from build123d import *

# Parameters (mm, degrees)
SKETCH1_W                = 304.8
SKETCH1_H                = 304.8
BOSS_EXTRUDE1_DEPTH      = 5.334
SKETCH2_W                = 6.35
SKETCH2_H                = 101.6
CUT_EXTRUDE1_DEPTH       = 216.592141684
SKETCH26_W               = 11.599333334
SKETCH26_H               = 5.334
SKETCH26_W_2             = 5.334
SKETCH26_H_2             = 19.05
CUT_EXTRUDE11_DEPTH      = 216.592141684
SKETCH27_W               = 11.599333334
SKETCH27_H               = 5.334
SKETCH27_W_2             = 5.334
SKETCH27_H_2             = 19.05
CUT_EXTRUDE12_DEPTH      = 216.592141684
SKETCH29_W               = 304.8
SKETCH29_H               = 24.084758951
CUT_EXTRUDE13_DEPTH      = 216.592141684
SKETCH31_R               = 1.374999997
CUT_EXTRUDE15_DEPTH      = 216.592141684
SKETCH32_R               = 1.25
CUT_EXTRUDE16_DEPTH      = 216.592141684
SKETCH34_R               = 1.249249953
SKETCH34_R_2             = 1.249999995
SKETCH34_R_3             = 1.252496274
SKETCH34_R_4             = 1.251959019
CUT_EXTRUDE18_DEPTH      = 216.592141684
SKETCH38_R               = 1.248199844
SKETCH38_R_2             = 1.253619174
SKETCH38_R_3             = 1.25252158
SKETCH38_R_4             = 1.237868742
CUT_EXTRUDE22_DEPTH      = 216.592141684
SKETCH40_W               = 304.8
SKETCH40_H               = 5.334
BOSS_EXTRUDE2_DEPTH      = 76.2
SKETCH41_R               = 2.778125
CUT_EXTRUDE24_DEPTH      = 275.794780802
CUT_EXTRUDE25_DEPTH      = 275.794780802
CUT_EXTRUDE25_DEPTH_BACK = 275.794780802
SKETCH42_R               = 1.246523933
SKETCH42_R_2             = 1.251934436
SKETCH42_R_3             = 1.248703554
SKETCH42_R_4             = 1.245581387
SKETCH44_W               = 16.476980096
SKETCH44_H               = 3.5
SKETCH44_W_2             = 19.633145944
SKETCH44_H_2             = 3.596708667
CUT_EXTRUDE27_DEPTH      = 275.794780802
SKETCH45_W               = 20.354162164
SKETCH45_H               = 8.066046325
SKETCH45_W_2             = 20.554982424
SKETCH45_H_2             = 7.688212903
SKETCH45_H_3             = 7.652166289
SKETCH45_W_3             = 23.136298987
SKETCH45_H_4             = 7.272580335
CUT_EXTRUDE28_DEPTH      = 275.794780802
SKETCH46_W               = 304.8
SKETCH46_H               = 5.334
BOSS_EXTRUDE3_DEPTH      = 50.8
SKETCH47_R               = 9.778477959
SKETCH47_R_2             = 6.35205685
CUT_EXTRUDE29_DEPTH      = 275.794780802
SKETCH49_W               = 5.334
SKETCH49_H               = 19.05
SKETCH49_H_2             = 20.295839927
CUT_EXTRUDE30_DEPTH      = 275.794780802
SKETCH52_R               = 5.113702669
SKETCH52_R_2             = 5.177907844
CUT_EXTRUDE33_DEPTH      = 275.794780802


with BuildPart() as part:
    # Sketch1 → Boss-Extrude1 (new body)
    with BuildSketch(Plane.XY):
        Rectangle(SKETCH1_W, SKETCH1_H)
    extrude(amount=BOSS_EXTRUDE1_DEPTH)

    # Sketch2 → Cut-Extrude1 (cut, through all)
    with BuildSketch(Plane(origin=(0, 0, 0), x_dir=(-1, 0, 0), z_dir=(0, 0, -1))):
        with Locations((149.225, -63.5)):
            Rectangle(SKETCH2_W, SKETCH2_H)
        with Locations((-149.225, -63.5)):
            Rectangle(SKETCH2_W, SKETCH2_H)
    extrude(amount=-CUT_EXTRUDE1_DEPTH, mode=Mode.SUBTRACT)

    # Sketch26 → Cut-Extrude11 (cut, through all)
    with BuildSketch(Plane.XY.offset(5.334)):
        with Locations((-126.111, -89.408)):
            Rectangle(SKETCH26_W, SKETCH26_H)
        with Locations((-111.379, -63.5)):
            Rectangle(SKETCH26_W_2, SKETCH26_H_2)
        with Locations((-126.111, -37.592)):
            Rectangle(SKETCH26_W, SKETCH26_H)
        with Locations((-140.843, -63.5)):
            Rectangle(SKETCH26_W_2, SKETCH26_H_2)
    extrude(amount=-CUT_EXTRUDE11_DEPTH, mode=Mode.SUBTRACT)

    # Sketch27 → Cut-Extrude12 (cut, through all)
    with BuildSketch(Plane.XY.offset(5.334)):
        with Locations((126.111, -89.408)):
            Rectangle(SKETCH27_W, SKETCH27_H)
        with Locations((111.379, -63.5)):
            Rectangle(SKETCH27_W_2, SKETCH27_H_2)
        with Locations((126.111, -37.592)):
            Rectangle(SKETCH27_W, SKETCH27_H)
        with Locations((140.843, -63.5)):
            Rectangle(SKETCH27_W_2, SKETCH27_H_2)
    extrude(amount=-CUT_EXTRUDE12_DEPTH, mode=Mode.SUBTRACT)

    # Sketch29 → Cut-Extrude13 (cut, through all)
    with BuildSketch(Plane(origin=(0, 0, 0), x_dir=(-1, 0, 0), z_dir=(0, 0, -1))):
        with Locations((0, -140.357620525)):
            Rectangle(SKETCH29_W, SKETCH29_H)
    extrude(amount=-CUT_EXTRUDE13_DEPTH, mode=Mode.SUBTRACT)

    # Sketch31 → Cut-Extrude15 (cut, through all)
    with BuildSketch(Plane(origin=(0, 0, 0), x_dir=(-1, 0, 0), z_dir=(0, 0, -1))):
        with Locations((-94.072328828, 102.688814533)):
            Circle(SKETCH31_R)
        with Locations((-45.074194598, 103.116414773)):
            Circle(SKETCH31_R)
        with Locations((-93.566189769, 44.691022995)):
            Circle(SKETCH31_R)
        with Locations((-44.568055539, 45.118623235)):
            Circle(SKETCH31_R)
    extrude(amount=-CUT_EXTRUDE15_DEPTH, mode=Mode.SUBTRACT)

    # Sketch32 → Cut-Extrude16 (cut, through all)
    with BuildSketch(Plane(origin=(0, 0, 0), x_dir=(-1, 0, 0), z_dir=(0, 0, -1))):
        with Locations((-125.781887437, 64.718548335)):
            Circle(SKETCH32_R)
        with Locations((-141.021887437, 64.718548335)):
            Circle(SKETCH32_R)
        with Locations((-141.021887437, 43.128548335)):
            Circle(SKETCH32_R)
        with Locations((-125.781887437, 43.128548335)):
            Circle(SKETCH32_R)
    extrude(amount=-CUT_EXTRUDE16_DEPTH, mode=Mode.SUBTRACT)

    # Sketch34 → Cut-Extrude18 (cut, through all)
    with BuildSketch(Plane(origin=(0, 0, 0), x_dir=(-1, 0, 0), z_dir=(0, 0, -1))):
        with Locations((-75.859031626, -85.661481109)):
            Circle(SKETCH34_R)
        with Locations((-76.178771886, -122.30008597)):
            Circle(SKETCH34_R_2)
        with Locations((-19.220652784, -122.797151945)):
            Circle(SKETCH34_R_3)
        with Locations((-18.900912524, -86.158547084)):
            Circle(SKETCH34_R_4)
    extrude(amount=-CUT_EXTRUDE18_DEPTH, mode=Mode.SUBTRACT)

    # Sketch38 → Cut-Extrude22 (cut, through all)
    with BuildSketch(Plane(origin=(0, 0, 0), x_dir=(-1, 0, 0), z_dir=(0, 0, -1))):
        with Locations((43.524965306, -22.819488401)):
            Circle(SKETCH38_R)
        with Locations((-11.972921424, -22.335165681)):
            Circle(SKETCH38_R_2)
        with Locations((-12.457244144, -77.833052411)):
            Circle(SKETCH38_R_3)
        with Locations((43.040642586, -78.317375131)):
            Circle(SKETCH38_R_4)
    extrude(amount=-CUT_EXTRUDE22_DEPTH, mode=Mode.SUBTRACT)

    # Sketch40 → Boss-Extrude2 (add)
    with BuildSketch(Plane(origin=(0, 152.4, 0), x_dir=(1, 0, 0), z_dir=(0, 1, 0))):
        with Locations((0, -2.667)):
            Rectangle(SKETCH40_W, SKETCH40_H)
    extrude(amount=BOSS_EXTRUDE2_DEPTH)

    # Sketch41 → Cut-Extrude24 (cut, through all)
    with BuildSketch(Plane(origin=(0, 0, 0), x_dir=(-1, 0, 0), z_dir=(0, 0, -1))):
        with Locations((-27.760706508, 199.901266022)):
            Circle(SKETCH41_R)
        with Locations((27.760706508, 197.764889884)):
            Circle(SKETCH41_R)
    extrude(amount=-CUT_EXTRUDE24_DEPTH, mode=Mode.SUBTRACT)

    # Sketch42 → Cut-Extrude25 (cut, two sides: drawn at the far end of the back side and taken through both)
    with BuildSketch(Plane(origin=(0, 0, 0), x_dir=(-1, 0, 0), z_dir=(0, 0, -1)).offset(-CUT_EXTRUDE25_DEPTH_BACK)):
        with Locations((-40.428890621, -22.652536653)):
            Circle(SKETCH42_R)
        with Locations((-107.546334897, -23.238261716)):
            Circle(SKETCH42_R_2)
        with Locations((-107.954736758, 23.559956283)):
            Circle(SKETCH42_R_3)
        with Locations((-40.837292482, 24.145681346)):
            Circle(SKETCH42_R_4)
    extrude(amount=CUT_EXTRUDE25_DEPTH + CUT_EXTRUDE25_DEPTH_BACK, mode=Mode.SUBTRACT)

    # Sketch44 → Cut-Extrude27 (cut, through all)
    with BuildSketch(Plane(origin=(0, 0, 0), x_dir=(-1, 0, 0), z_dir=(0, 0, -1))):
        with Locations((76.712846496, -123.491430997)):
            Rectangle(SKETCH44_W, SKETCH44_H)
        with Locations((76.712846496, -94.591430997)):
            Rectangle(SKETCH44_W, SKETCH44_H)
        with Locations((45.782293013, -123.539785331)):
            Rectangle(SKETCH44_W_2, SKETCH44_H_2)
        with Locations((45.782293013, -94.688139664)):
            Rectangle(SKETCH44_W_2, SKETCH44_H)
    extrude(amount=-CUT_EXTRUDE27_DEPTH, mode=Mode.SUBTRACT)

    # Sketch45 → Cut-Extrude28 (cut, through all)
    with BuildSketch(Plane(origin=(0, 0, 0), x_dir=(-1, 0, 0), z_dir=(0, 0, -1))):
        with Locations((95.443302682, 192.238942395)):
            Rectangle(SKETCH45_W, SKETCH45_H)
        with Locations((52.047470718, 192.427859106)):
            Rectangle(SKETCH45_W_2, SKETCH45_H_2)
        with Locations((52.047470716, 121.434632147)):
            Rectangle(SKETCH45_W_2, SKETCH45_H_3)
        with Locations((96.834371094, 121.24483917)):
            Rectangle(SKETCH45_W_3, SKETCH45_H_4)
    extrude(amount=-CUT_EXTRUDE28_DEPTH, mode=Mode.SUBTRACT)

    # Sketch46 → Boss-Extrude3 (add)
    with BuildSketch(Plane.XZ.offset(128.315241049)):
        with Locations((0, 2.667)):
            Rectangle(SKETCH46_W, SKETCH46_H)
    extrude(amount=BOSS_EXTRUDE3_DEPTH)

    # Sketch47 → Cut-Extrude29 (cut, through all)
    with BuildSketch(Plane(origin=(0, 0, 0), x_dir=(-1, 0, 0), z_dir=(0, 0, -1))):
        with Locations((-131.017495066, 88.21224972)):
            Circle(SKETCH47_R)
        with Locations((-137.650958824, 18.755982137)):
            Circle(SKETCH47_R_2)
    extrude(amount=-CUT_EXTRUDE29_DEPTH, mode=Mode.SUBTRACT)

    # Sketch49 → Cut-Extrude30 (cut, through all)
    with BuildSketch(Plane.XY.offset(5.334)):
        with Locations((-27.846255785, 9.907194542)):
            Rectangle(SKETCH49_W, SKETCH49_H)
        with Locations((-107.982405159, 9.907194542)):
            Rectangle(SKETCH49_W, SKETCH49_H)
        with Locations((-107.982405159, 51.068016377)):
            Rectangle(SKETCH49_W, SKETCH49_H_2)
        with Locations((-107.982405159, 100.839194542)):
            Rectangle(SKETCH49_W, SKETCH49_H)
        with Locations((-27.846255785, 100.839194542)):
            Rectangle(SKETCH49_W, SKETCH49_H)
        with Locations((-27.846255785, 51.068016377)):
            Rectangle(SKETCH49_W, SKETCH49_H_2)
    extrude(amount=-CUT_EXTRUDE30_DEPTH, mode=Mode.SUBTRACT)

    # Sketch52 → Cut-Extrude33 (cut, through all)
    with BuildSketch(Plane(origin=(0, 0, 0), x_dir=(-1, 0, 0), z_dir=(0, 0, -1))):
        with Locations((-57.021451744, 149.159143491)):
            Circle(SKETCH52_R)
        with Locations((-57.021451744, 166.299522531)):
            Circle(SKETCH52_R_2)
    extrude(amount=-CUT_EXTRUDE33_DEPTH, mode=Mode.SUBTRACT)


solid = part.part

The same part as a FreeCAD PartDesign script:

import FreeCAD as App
import Part
import Sketcher
from FreeCAD import Vector
Q = App.Units.Quantity


def add_polygon(sketch, points):
    """Adds a closed chain of lines whose ends are joined by coincident constraints."""
    first, n = sketch.GeometryCount, len(points)
    for a, b in zip(points, points[1:] + points[:1]):
        sketch.addGeometry(Part.LineSegment(App.Vector(*a, 0), App.Vector(*b, 0)), False)
    for i in range(n):
        sketch.addConstraint(Sketcher.Constraint("Coincident", first + i, 2, first + (i + 1) % n, 1))

doc = App.newDocument("Part")
body = doc.addObject("PartDesign::Body", "Body")

sketch1 = body.newObject("Sketcher::SketchObject", "Sketch")
sketch1.AttachmentSupport = (doc.getObject("XY_Plane"), [""])
sketch1.MapMode = "FlatFace"
add_polygon(sketch1, [(-152.4, 152.4), (-152.4, -152.4), (152.4, -152.4), (152.4, 152.4)])
sketch1.addConstraint([
    Sketcher.Constraint("Vertical", 0),
    Sketcher.Constraint("Horizontal", 1),
    Sketcher.Constraint("Vertical", 2),
    Sketcher.Constraint("Horizontal", 3),
    Sketcher.Constraint("Symmetric", 0, 2, 2, 2, -1, 1),
    Sketcher.Constraint("Equal", 3, 0),
    Sketcher.Constraint("DistanceX", 1, 1, 1, 2, Q("12 in")),
])
pad1 = body.newObject("PartDesign::Pad", "Pad")
pad1.Profile = sketch1
pad1.Length = Q("0.21 in")

sketch2 = body.newObject("Sketcher::SketchObject", "Sketch001")
sketch2.AttachmentSupport = (doc.getObject("XY_Plane"), [""])
sketch2.MapMode = "FlatFace"
add_polygon(sketch2, [(-146.05, -12.7), (-146.05, -114.3), (-152.4, -114.3), (-152.4, -12.7)])
add_polygon(sketch2, [(152.4, -12.7), (152.4, -114.3), (146.05, -114.3), (146.05, -12.7)])
sketch2.addConstraint([
    Sketcher.Constraint("Vertical", 0),
    Sketcher.Constraint("Horizontal", 1),
    Sketcher.Constraint("Vertical", 2),
    Sketcher.Constraint("Horizontal", 3),
    Sketcher.Constraint("Vertical", 4),
    Sketcher.Constraint("Horizontal", 5),
    Sketcher.Constraint("Vertical", 6),
    Sketcher.Constraint("Horizontal", 7),
    Sketcher.Constraint("Symmetric", 1, 2, 4, 2, -2),
    Sketcher.Constraint("Symmetric", 3, 2, 6, 2, -2),
    Sketcher.Constraint("DistanceY", 0, 2, 0, 1, Q("4 in")),
    Sketcher.Constraint("DistanceX", 1, 2, -1, 1, Q("6 in")),
    Sketcher.Constraint("DistanceX", 1, 2, 1, 1, Q("0.25 in")),
    Sketcher.Constraint("DistanceY", 0, 2, -1, 1, Q("4.5 in")),
])
pocket1 = body.newObject("PartDesign::Pocket", "Pocket")
pocket1.Profile = sketch2
pocket1.Type = "ThroughAll"
pocket1.Reversed = True

sketch3 = body.newObject("Sketcher::SketchObject", "Sketch002")
sketch3.AttachmentSupport = (doc.getObject("XY_Plane"), [""])
sketch3.MapMode = "FlatFace"
sketch3.AttachmentOffset = App.Placement(Vector(0, 0, 0.21 * 25.4), App.Rotation())
add_polygon(sketch3, [(-131.910667, -86.741), (-131.910667, -92.075), (-120.311333, -92.075), (-120.311333, -86.741)])
add_polygon(sketch3, [(-114.046, -53.975), (-114.046, -73.025), (-108.712, -73.025), (-108.712, -53.975)])
add_polygon(sketch3, [(-131.910667, -34.925), (-131.910667, -40.259), (-120.311333, -40.259), (-120.311333, -34.925)])
add_polygon(sketch3, [(-143.51, -53.975), (-143.51, -73.025), (-138.176, -73.025), (-138.176, -53.975)])
sketch3.addConstraint([
    Sketcher.Constraint("Vertical", 0),
    Sketcher.Constraint("Horizontal", 1),
    Sketcher.Constraint("Vertical", 2),
    Sketcher.Constraint("Horizontal", 3),
    Sketcher.Constraint("Vertical", 4),
    Sketcher.Constraint("Horizontal", 5),
    Sketcher.Constraint("Vertical", 6),
    Sketcher.Constraint("Horizontal", 7),
    Sketcher.Constraint("Vertical", 8),
    Sketcher.Constraint("Horizontal", 9),
    Sketcher.Constraint("Vertical", 10),
    Sketcher.Constraint("Horizontal", 11),
    Sketcher.Constraint("Vertical", 12),
    Sketcher.Constraint("Horizontal", 13),
    Sketcher.Constraint("Vertical", 14),
    Sketcher.Constraint("Horizontal", 15),
    Sketcher.Constraint("Horizontal", 5, 2, 12, 2),
    Sketcher.Constraint("Horizontal", 7, 2, 14, 2),
    Sketcher.Constraint("Vertical", 3, 2, 8, 2),
    Sketcher.Constraint("Vertical", 2, 2, 9, 2),
    Sketcher.Constraint("Equal", 7, 13),
    Sketcher.Constraint("Equal", 15, 0),
    Sketcher.Constraint("Equal", 2, 8),
    Sketcher.Constraint("DistanceX", 5, 1, 5, 2, Q("0.21 in")),
    Sketcher.Constraint("DistanceY", 4, 2, 4, 1, Q("0.75 in")),
    Sketcher.Constraint("DistanceY", 1, 2, 6, 2, Q("1.5 in")),
    Sketcher.Constraint("DistanceY", 4, 2, 10, 2, Q("1.5 in")),
    Sketcher.Constraint("DistanceX", 4, 2, -1, 1, Q("4.49 in")),
    Sketcher.Constraint("DistanceX", 12, 2, -1, 1, Q("5.65 in")),
    Sketcher.Constraint("DistanceY", 0, 2, -1, 1, Q("3.625 in")),
    Sketcher.Constraint("DistanceX", 1, 1, 1, 2, Q("11.599333 mm")),
    Sketcher.Constraint("DistanceX", 0, 2, -1, 1, Q("131.910667 mm")),
])
pocket2 = body.newObject("PartDesign::Pocket", "Pocket001")
pocket2.Profile = sketch3
pocket2.Type = "ThroughAll"

sketch4 = body.newObject("Sketcher::SketchObject", "Sketch003")
sketch4.AttachmentSupport = (doc.getObject("XY_Plane"), [""])
sketch4.MapMode = "FlatFace"
sketch4.AttachmentOffset = App.Placement(Vector(0, 0, 0.21 * 25.4), App.Rotation())
add_polygon(sketch4, [(120.311333, -86.741), (120.311333, -92.075), (131.910667, -92.075), (131.910667, -86.741)])
add_polygon(sketch4, [(108.712, -53.975), (108.712, -73.025), (114.046, -73.025), (114.046, -53.975)])
add_polygon(sketch4, [(120.311333, -34.925), (120.311333, -40.259), (131.910667, -40.259), (131.910667, -34.925)])
add_polygon(sketch4, [(138.176, -53.975), (138.176, -73.025), (143.51, -73.025), (143.51, -53.975)])
sketch4.addConstraint([
    Sketcher.Constraint("Vertical", 0),
    Sketcher.Constraint("Horizontal", 1),
    Sketcher.Constraint("Vertical", 2),
    Sketcher.Constraint("Horizontal", 3),
    Sketcher.Constraint("Vertical", 4),
    Sketcher.Constraint("Horizontal", 5),
    Sketcher.Constraint("Vertical", 6),
    Sketcher.Constraint("Horizontal", 7),
    Sketcher.Constraint("Vertical", 8),
    Sketcher.Constraint("Horizontal", 9),
    Sketcher.Constraint("Vertical", 10),
    Sketcher.Constraint("Horizontal", 11),
    Sketcher.Constraint("Vertical", 12),
    Sketcher.Constraint("Horizontal", 13),
    Sketcher.Constraint("Vertical", 14),
    Sketcher.Constraint("Horizontal", 15),
    Sketcher.Constraint("Horizontal", 5, 2, 12, 2),
    Sketcher.Constraint("Horizontal", 7, 2, 14, 2),
    Sketcher.Constraint("Vertical", 3, 2, 8, 2),
    Sketcher.Constraint("Vertical", 2, 2, 9, 2),
    Sketcher.Constraint("Equal", 7, 13),
    Sketcher.Constraint("Equal", 15, 0),
    Sketcher.Constraint("Equal", 2, 8),
    Sketcher.Constraint("DistanceX", 5, 1, 5, 2, Q("0.21 in")),
    Sketcher.Constraint("DistanceY", 4, 2, 4, 1, Q("0.75 in")),
    Sketcher.Constraint("DistanceY", 0, 2, 6, 2, Q("1.5 in")),
    Sketcher.Constraint("DistanceY", 5, 2, 10, 2, Q("1.5 in")),
    Sketcher.Constraint("DistanceX", -1, 1, 4, 2, Q("4.28 in")),
    Sketcher.Constraint("DistanceX", -1, 1, 12, 2, Q("5.44 in")),
    Sketcher.Constraint("DistanceY", 0, 2, -1, 1, Q("3.625 in")),
    Sketcher.Constraint("DistanceX", 1, 1, 1, 2, Q("11.599333 mm")),
    Sketcher.Constraint("DistanceX", -1, 1, 0, 2, Q("120.311333 mm")),
])
pocket3 = body.newObject("PartDesign::Pocket", "Pocket002")
pocket3.Profile = sketch4
pocket3.Type = "ThroughAll"

sketch5 = body.newObject("Sketcher::SketchObject", "Sketch004")
sketch5.AttachmentSupport = (doc.getObject("XY_Plane"), [""])
sketch5.MapMode = "FlatFace"
add_polygon(sketch5, [(152.4, -128.315241), (152.4, -152.4), (-152.4, -152.4), (-152.4, -128.315241)])
sketch5.addConstraint([
    Sketcher.Constraint("Vertical", 0),
    Sketcher.Constraint("Horizontal", 1),
    Sketcher.Constraint("Vertical", 2),
    Sketcher.Constraint("Horizontal", 3),
    Sketcher.Constraint("DistanceX", 1, 2, 1, 1, Q("12 in")),
    Sketcher.Constraint("DistanceX", -1, 1, 0, 2, Q("6 in")),
    Sketcher.Constraint("DistanceY", 0, 2, -1, 1, Q("6 in")),
    Sketcher.Constraint("DistanceY", 0, 2, 0, 1, Q("24.084759 mm")),
])
pocket4 = body.newObject("PartDesign::Pocket", "Pocket003")
pocket4.Profile = sketch5
pocket4.Type = "ThroughAll"
pocket4.Reversed = True

sketch6 = body.newObject("Sketcher::SketchObject", "Sketch005")
sketch6.AttachmentSupport = (doc.getObject("XY_Plane"), [""])
sketch6.MapMode = "FlatFace"
sketch6.addGeometry([
    Part.Circle(Vector(94.072329, 102.688815, 0), Vector(0, 0, 1), 1.375),
    Part.Circle(Vector(45.074195, 103.116415, 0), Vector(0, 0, 1), 1.375),
    Part.Circle(Vector(93.56619, 44.691023, 0), Vector(0, 0, 1), 1.375),
    Part.Circle(Vector(44.568056, 45.118623, 0), Vector(0, 0, 1), 1.375),
], False)
sketch6.addConstraint([
    Sketcher.Constraint("Equal", 0, 1),
    Sketcher.Constraint("Equal", 1, 2),
    Sketcher.Constraint("Equal", 2, 3),
    Sketcher.Constraint("Diameter", 0, Q("2.75 mm")),
    Sketcher.Constraint("DistanceY", 0, 3, 1, 3, Q("0.4276 mm")),
    Sketcher.Constraint("DistanceY", 2, 3, 3, 3, Q("0.4276 mm")),
    Sketcher.Constraint("DistanceX", -1, 1, 0, 3, Q("94.072329 mm")),
    Sketcher.Constraint("DistanceX", -1, 1, 2, 3, Q("93.56619 mm")),
    Sketcher.Constraint("DistanceY", 2, 3, 0, 3, Q("57.997792 mm")),
    Sketcher.Constraint("DistanceX", 3, 3, 1, 3, Q("0.506139 mm")),
    Sketcher.Constraint("DistanceY", -1, 1, 0, 3, Q("102.688815 mm")),
    Sketcher.Constraint("DistanceX", -1, 1, 1, 3, Q("45.074195 mm")),
])
pocket5 = body.newObject("PartDesign::Pocket", "Pocket004")
pocket5.Profile = sketch6
pocket5.Type = "ThroughAll"
pocket5.Reversed = True

sketch7 = body.newObject("Sketcher::SketchObject", "Sketch006")
sketch7.AttachmentSupport = (doc.getObject("XY_Plane"), [""])
sketch7.MapMode = "FlatFace"
sketch7.addGeometry([
    Part.Circle(Vector(125.781887, 64.718548, 0), Vector(0, 0, 1), 1.25),
    Part.Circle(Vector(141.021887, 64.718548, 0), Vector(0, 0, 1), 1.25),
    Part.Circle(Vector(141.021887, 43.128548, 0), Vector(0, 0, 1), 1.25),
    Part.Circle(Vector(125.781887, 43.128548, 0), Vector(0, 0, 1), 1.25),
], False)
sketch7.addConstraint([
    Sketcher.Constraint("Equal", 0, 1),
    Sketcher.Constraint("Equal", 1, 2),
    Sketcher.Constraint("Equal", 2, 3),
    Sketcher.Constraint("Horizontal", 0, 3, 1, 3),
    Sketcher.Constraint("Horizontal", 2, 3, 3, 3),
    Sketcher.Constraint("Vertical", 1, 3, 2, 3),
    Sketcher.Constraint("Vertical", 0, 3, 3, 3),
    Sketcher.Constraint("DistanceX", 0, 3, 1, 3, Q("0.6 in")),
    Sketcher.Constraint("Diameter", 0, Q("2.5 mm")),
    Sketcher.Constraint("DistanceY", 2, 3, 1, 3, Q("0.85 in")),
    Sketcher.Constraint("DistanceY", -1, 1, 0, 3, Q("64.718548 mm")),
    Sketcher.Constraint("DistanceX", -1, 1, 0, 3, Q("125.781887 mm")),
])
pocket6 = body.newObject("PartDesign::Pocket", "Pocket005")
pocket6.Profile = sketch7
pocket6.Type = "ThroughAll"
pocket6.Reversed = True

sketch8 = body.newObject("Sketcher::SketchObject", "Sketch007")
sketch8.AttachmentSupport = (doc.getObject("XY_Plane"), [""])
sketch8.MapMode = "FlatFace"
sketch8.addGeometry([
    Part.Circle(Vector(75.859032, -85.661481, 0), Vector(0, 0, 1), 1.24925),
    Part.Circle(Vector(76.178772, -122.300086, 0), Vector(0, 0, 1), 1.25),
    Part.Circle(Vector(19.220653, -122.797152, 0), Vector(0, 0, 1), 1.252496),
    Part.Circle(Vector(18.900913, -86.158547, 0), Vector(0, 0, 1), 1.251959),
], False)
sketch8.addConstraint([
    Sketcher.Constraint("Diameter", 0, Q("2.4985 mm")),
    Sketcher.Constraint("Diameter", 1, Q("2.5 mm")),
    Sketcher.Constraint("Diameter", 3, Q("2.503918 mm")),
    Sketcher.Constraint("Diameter", 2, Q("2.504993 mm")),
    Sketcher.Constraint("DistanceX", -1, 1, 0, 3, Q("75.859032 mm")),
    Sketcher.Constraint("DistanceY", 0, 3, -1, 1, Q("85.661481 mm")),
    Sketcher.Constraint("DistanceX", -1, 1, 1, 3, Q("76.178772 mm")),
    Sketcher.Constraint("DistanceY", 2, 3, -1, 1, Q("122.797152 mm")),
    Sketcher.Constraint("DistanceX", 2, 3, 1, 3, Q("56.958119 mm")),
    Sketcher.Constraint("DistanceX", 3, 3, 2, 3, Q("0.31974 mm")),
    Sketcher.Constraint("DistanceY", 1, 3, 3, 3, Q("36.141539 mm")),
    Sketcher.Constraint("DistanceY", 1, 3, -1, 1, Q("122.300086 mm")),
])
pocket7 = body.newObject("PartDesign::Pocket", "Pocket006")
pocket7.Profile = sketch8
pocket7.Type = "ThroughAll"
pocket7.Reversed = True

sketch9 = body.newObject("Sketcher::SketchObject", "Sketch008")
sketch9.AttachmentSupport = (doc.getObject("XY_Plane"), [""])
sketch9.MapMode = "FlatFace"
sketch9.addGeometry([
    Part.Circle(Vector(-43.524965, -22.819488, 0), Vector(0, 0, 1), 1.2482),
    Part.Circle(Vector(11.972921, -22.335166, 0), Vector(0, 0, 1), 1.253619),
    Part.Circle(Vector(12.457244, -77.833052, 0), Vector(0, 0, 1), 1.252522),
    Part.Circle(Vector(-43.040643, -78.317375, 0), Vector(0, 0, 1), 1.237869),
], False)
sketch9.addConstraint([
    Sketcher.Constraint("Diameter", 0, Q("2.4964 mm")),
    Sketcher.Constraint("Diameter", 1, Q("2.507238 mm")),
    Sketcher.Constraint("Diameter", 2, Q("2.505043 mm")),
    Sketcher.Constraint("Diameter", 3, Q("2.475737 mm")),
    Sketcher.Constraint("DistanceY", 0, 3, -1, 1, Q("22.819488 mm")),
    Sketcher.Constraint("DistanceX", -1, 1, 1, 3, Q("11.972921 mm")),
    Sketcher.Constraint("DistanceX", 0, 3, 2, 3, Q("55.982209 mm")),
    Sketcher.Constraint("DistanceY", 3, 3, 1, 3, Q("55.982209 mm")),
    Sketcher.Constraint("DistanceX", 0, 3, -1, 1, Q("43.524965 mm")),
    Sketcher.Constraint("DistanceY", 1, 3, -1, 1, Q("22.335166 mm")),
    Sketcher.Constraint("DistanceY", 2, 3, -1, 1, Q("77.833052 mm")),
    Sketcher.Constraint("DistanceX", 3, 3, -1, 1, Q("43.040643 mm")),
])
pocket8 = body.newObject("PartDesign::Pocket", "Pocket007")
pocket8.Profile = sketch9
pocket8.Type = "ThroughAll"
pocket8.Reversed = True

sketch10 = body.newObject("Sketcher::SketchObject", "Sketch009")
sketch10.AttachmentSupport = (doc.getObject("XZ_Plane"), [""])
sketch10.MapMode = "FlatFace"
sketch10.AttachmentOffset = App.Placement(Vector(0, 0, -6 * 25.4), App.Rotation())
add_polygon(sketch10, [(-152.4, 0), (-152.4, 5.334), (152.4, 5.334), (152.4, 0)])
sketch10.addConstraint([
    Sketcher.Constraint("Vertical", 0),
    Sketcher.Constraint("Horizontal", 1),
    Sketcher.Constraint("Vertical", 2),
    Sketcher.Constraint("Horizontal", 3),
    Sketcher.Constraint("Symmetric", 2, 2, 3, 2, -1, 1),
    Sketcher.Constraint("DistanceX", 1, 1, 1, 2, Q("12 in")),
    Sketcher.Constraint("DistanceY", 0, 1, 0, 2, Q("0.21 in")),
])
pad2 = body.newObject("PartDesign::Pad", "Pad001")
pad2.Profile = sketch10
pad2.Length = Q("3 in")
pad2.Reversed = True

sketch11 = body.newObject("Sketcher::SketchObject", "Sketch010")
sketch11.AttachmentSupport = (doc.getObject("XY_Plane"), [""])
sketch11.MapMode = "FlatFace"
sketch11.addGeometry([
    Part.Circle(Vector(27.760707, 199.901266, 0), Vector(0, 0, 1), 2.778125),
    Part.Circle(Vector(-27.760707, 197.76489, 0), Vector(0, 0, 1), 2.778125),
], False)
sketch11.addConstraint([
    Sketcher.Constraint("Equal", 0, 1),
    Sketcher.Constraint("Diameter", 0, Q("0.21875 in")),
    Sketcher.Constraint("DistanceY", -1, 1, 1, 3, Q("197.76489 mm")),
    Sketcher.Constraint("DistanceX", -1, 1, 0, 3, Q("27.760707 mm")),
    Sketcher.Constraint("DistanceY", -1, 1, 0, 3, Q("199.901266 mm")),
    Sketcher.Constraint("DistanceX", 1, 3, -1, 1, Q("27.760707 mm")),
])
pocket9 = body.newObject("PartDesign::Pocket", "Pocket008")
pocket9.Profile = sketch11
pocket9.Type = "ThroughAll"
pocket9.Reversed = True

sketch12 = body.newObject("Sketcher::SketchObject", "Sketch011")
sketch12.AttachmentSupport = (doc.getObject("XY_Plane"), [""])
sketch12.MapMode = "FlatFace"
sketch12.addGeometry([
    Part.Circle(Vector(40.428891, -22.652537, 0), Vector(0, 0, 1), 1.246524),
    Part.Circle(Vector(107.546335, -23.238262, 0), Vector(0, 0, 1), 1.251934),
    Part.Circle(Vector(107.954737, 23.559956, 0), Vector(0, 0, 1), 1.248704),
    Part.Circle(Vector(40.837292, 24.145681, 0), Vector(0, 0, 1), 1.245581),
], False)
sketch12.addConstraint([
    Sketcher.Constraint("Diameter", 1, Q("2.503869 mm")),
    Sketcher.Constraint("Diameter", 0, Q("2.493048 mm")),
    Sketcher.Constraint("Diameter", 2, Q("2.497407 mm")),
    Sketcher.Constraint("Diameter", 3, Q("2.491163 mm")),
    Sketcher.Constraint("DistanceX", 1, 3, 2, 3, Q("0.408402 mm")),
    Sketcher.Constraint("DistanceX", 0, 3, 3, 3, Q("0.408402 mm")),
    Sketcher.Constraint("DistanceX", -1, 1, 0, 3, Q("40.428891 mm")),
    Sketcher.Constraint("DistanceY", 1, 3, -1, 1, Q("23.238262 mm")),
    Sketcher.Constraint("DistanceY", -1, 1, 3, 3, Q("24.145681 mm")),
    Sketcher.Constraint("DistanceY", 0, 3, -1, 1, Q("22.652537 mm")),
    Sketcher.Constraint("DistanceX", -1, 1, 1, 3, Q("107.546335 mm")),
    Sketcher.Constraint("DistanceY", -1, 1, 2, 3, Q("23.559956 mm")),
])
pocket10 = body.newObject("PartDesign::Pocket", "Pocket009")
pocket10.Profile = sketch12
pocket10.Type = "ThroughAll"
pocket10.Midplane = True

sketch13 = body.newObject("Sketcher::SketchObject", "Sketch012")
sketch13.AttachmentSupport = (doc.getObject("XY_Plane"), [""])
sketch13.MapMode = "FlatFace"
add_polygon(sketch13, [(-68.474356, -121.741431), (-68.474356, -125.241431), (-84.951337, -125.241431), (-84.951337, -121.741431)])
add_polygon(sketch13, [(-68.474356, -92.841431), (-68.474356, -96.341431), (-84.951337, -96.341431), (-84.951337, -92.841431)])
add_polygon(sketch13, [(-35.96572, -121.741431), (-35.96572, -125.33814), (-55.598866, -125.33814), (-55.598866, -121.741431)])
add_polygon(sketch13, [(-35.96572, -92.93814), (-35.96572, -96.43814), (-55.598866, -96.43814), (-55.598866, -92.93814)])
sketch13.addConstraint([
    Sketcher.Constraint("Vertical", 0),
    Sketcher.Constraint("Horizontal", 1),
    Sketcher.Constraint("Vertical", 2),
    Sketcher.Constraint("Horizontal", 3),
    Sketcher.Constraint("Vertical", 4),
    Sketcher.Constraint("Horizontal", 5),
    Sketcher.Constraint("Vertical", 6),
    Sketcher.Constraint("Horizontal", 7),
    Sketcher.Constraint("Vertical", 8),
    Sketcher.Constraint("Horizontal", 9),
    Sketcher.Constraint("Vertical", 10),
    Sketcher.Constraint("Horizontal", 11),
    Sketcher.Constraint("Vertical", 12),
    Sketcher.Constraint("Horizontal", 13),
    Sketcher.Constraint("Vertical", 14),
    Sketcher.Constraint("Horizontal", 15),
    Sketcher.Constraint("Horizontal", 3, 2, 10, 2),
    Sketcher.Constraint("Vertical", 3, 2, 4, 2),
    Sketcher.Constraint("Vertical", 2, 2, 5, 2),
    Sketcher.Constraint("Vertical", 11, 2, 12, 2),
    Sketcher.Constraint("Vertical", 10, 2, 13, 2),
    Sketcher.Constraint("Equal", 2, 4),
    Sketcher.Constraint("Equal", 6, 12),
    Sketcher.Constraint("DistanceY", 3, 2, 4, 2, Q("1 in")),
    Sketcher.Constraint("DistanceX", 1, 2, 1, 1, Q("0.6487 in")),
    Sketcher.Constraint("DistanceY", 0, 2, 0, 1, Q("3.5 mm")),
    Sketcher.Constraint("DistanceY", 8, 2, 8, 1, Q("3.596709 mm")),
    Sketcher.Constraint("DistanceY", 8, 2, 12, 2, Q("28.9 mm")),
    Sketcher.Constraint("DistanceX", 9, 2, 9, 1, Q("19.633146 mm")),
    Sketcher.Constraint("DistanceY", 0, 2, -1, 1, Q("125.241431 mm")),
    Sketcher.Constraint("DistanceX", 8, 2, -1, 1, Q("35.96572 mm")),
    Sketcher.Constraint("DistanceX", 0, 2, 9, 2, Q("12.87549 mm")),
])
pocket11 = body.newObject("PartDesign::Pocket", "Pocket010")
pocket11.Profile = sketch13
pocket11.Type = "ThroughAll"
pocket11.Reversed = True

sketch14 = body.newObject("Sketcher::SketchObject", "Sketch013")
sketch14.AttachmentSupport = (doc.getObject("XY_Plane"), [""])
sketch14.MapMode = "FlatFace"
add_polygon(sketch14, [(-85.266222, 196.271966), (-85.266222, 188.205919), (-105.620384, 188.205919), (-105.620384, 196.271966)])
add_polygon(sketch14, [(-41.76998, 196.271966), (-41.76998, 188.583753), (-62.324962, 188.583753), (-62.324962, 196.271966)])
add_polygon(sketch14, [(-41.76998, 125.260715), (-41.76998, 117.608549), (-62.324962, 117.608549), (-62.324962, 125.260715)])
add_polygon(sketch14, [(-85.266222, 124.881129), (-85.266222, 117.608549), (-108.402521, 117.608549), (-108.402521, 124.881129)])
sketch14.addConstraint([
    Sketcher.Constraint("Vertical", 0),
    Sketcher.Constraint("Horizontal", 1),
    Sketcher.Constraint("Vertical", 2),
    Sketcher.Constraint("Horizontal", 3),
    Sketcher.Constraint("Vertical", 4),
    Sketcher.Constraint("Horizontal", 5),
    Sketcher.Constraint("Vertical", 6),
    Sketcher.Constraint("Horizontal", 7),
    Sketcher.Constraint("Vertical", 8),
    Sketcher.Constraint("Horizontal", 9),
    Sketcher.Constraint("Vertical", 10),
    Sketcher.Constraint("Horizontal", 11),
    Sketcher.Constraint("Vertical", 12),
    Sketcher.Constraint("Horizontal", 13),
    Sketcher.Constraint("Vertical", 14),
    Sketcher.Constraint("Horizontal", 15),
    Sketcher.Constraint("Horizontal", 3, 2, 6, 2),
    Sketcher.Constraint("Horizontal", 9, 2, 12, 2),
    Sketcher.Constraint("Vertical", 7, 2, 8, 2),
    Sketcher.Constraint("Vertical", 6, 2, 9, 2),
    Sketcher.Constraint("Vertical", 3, 2, 12, 2),
    Sketcher.Constraint("DistanceX", 13, 2, 13, 1, Q("23.136299 mm")),
    Sketcher.Constraint("DistanceY", 12, 2, 12, 1, Q("7.27258 mm")),
    Sketcher.Constraint("DistanceX", 1, 2, 1, 1, Q("20.354162 mm")),
    Sketcher.Constraint("DistanceX", 5, 2, 5, 1, Q("20.554982 mm")),
    Sketcher.Constraint("DistanceY", 0, 2, 0, 1, Q("8.066046 mm")),
    Sketcher.Constraint("DistanceY", 4, 2, 4, 1, Q("7.688213 mm")),
    Sketcher.Constraint("DistanceY", 8, 2, 8, 1, Q("7.652166 mm")),
    Sketcher.Constraint("DistanceX", 0, 2, -1, 1, Q("85.266222 mm")),
    Sketcher.Constraint("DistanceY", -1, 1, 0, 2, Q("188.205919 mm")),
    Sketcher.Constraint("DistanceX", 4, 2, -1, 1, Q("41.76998 mm")),
    Sketcher.Constraint("DistanceY", -1, 1, 8, 2, Q("117.608549 mm")),
])
pocket12 = body.newObject("PartDesign::Pocket", "Pocket011")
pocket12.Profile = sketch14
pocket12.Type = "ThroughAll"
pocket12.Reversed = True

sketch15 = body.newObject("Sketcher::SketchObject", "Sketch014")
sketch15.AttachmentSupport = (doc.getObject("XZ_Plane"), [""])
sketch15.MapMode = "FlatFace"
sketch15.AttachmentOffset = App.Placement(Vector(0, 0, 128.315241), App.Rotation())
add_polygon(sketch15, [(-152.4, 5.334), (-152.4, 0), (152.4, 0), (152.4, 5.334)])
sketch15.addConstraint([
    Sketcher.Constraint("Vertical", 0),
    Sketcher.Constraint("Horizontal", 1),
    Sketcher.Constraint("Vertical", 2),
    Sketcher.Constraint("Horizontal", 3),
    Sketcher.Constraint("Symmetric", 0, 2, 1, 2, -1, 1),
    Sketcher.Constraint("DistanceX", 1, 1, 1, 2, Q("12 in")),
    Sketcher.Constraint("DistanceY", 0, 2, 0, 1, Q("0.21 in")),
])
pad3 = body.newObject("PartDesign::Pad", "Pad002")
pad3.Profile = sketch15
pad3.Length = Q("2 in")

sketch16 = body.newObject("Sketcher::SketchObject", "Sketch015")
sketch16.AttachmentSupport = (doc.getObject("XY_Plane"), [""])
sketch16.MapMode = "FlatFace"
sketch16.addGeometry([
    Part.Circle(Vector(131.017495, 88.21225, 0), Vector(0, 0, 1), 9.778478),
    Part.Circle(Vector(137.650959, 18.755982, 0), Vector(0, 0, 1), 6.352057),
], False)
sketch16.addConstraint([
    Sketcher.Constraint("Diameter", 0, Q("19.556956 mm")),
    Sketcher.Constraint("Diameter", 1, Q("12.704114 mm")),
    Sketcher.Constraint("DistanceY", -1, 1, 0, 3, Q("88.21225 mm")),
    Sketcher.Constraint("DistanceX", -1, 1, 1, 3, Q("137.650959 mm")),
    Sketcher.Constraint("DistanceX", -1, 1, 0, 3, Q("131.017495 mm")),
    Sketcher.Constraint("DistanceY", -1, 1, 1, 3, Q("18.755982 mm")),
])
pocket13 = body.newObject("PartDesign::Pocket", "Pocket012")
pocket13.Profile = sketch16
pocket13.Type = "ThroughAll"
pocket13.Reversed = True

sketch17 = body.newObject("Sketcher::SketchObject", "Sketch016")
sketch17.AttachmentSupport = (doc.getObject("XY_Plane"), [""])
sketch17.MapMode = "FlatFace"
sketch17.AttachmentOffset = App.Placement(Vector(0, 0, 0.21 * 25.4), App.Rotation())
add_polygon(sketch17, [(-30.513256, 19.432195), (-30.513256, 0.382195), (-25.179256, 0.382195), (-25.179256, 19.432195)])
add_polygon(sketch17, [(-110.649405, 19.432195), (-110.649405, 0.382195), (-105.315405, 0.382195), (-105.315405, 19.432195)])
add_polygon(sketch17, [(-110.649405, 61.215936), (-110.649405, 40.920096), (-105.315405, 40.920096), (-105.315405, 61.215936)])
add_polygon(sketch17, [(-110.649405, 110.364195), (-110.649405, 91.314195), (-105.315405, 91.314195), (-105.315405, 110.364195)])
add_polygon(sketch17, [(-30.513256, 110.364195), (-30.513256, 91.314195), (-25.179256, 91.314195), (-25.179256, 110.364195)])
add_polygon(sketch17, [(-30.513256, 61.215936), (-30.513256, 40.920096), (-25.179256, 40.920096), (-25.179256, 61.215936)])
sketch17.addConstraint([
    Sketcher.Constraint("Vertical", 0),
    Sketcher.Constraint("Horizontal", 1),
    Sketcher.Constraint("Vertical", 2),
    Sketcher.Constraint("Horizontal", 3),
    Sketcher.Constraint("Vertical", 4),
    Sketcher.Constraint("Horizontal", 5),
    Sketcher.Constraint("Vertical", 6),
    Sketcher.Constraint("Horizontal", 7),
    Sketcher.Constraint("Vertical", 8),
    Sketcher.Constraint("Horizontal", 9),
    Sketcher.Constraint("Vertical", 10),
    Sketcher.Constraint("Horizontal", 11),
    Sketcher.Constraint("Vertical", 12),
    Sketcher.Constraint("Horizontal", 13),
    Sketcher.Constraint("Vertical", 14),
    Sketcher.Constraint("Horizontal", 15),
    Sketcher.Constraint("Vertical", 16),
    Sketcher.Constraint("Horizontal", 17),
    Sketcher.Constraint("Vertical", 18),
    Sketcher.Constraint("Horizontal", 19),
    Sketcher.Constraint("Vertical", 20),
    Sketcher.Constraint("Horizontal", 21),
    Sketcher.Constraint("Vertical", 22),
    Sketcher.Constraint("Horizontal", 23),
    Sketcher.Constraint("Horizontal", 1, 2, 4, 2),
    Sketcher.Constraint("Horizontal", 3, 2, 6, 2),
    Sketcher.Constraint("Horizontal", 13, 2, 16, 2),
    Sketcher.Constraint("Horizontal", 15, 2, 18, 2),
    Sketcher.Constraint("Horizontal", 9, 2, 20, 2),
    Sketcher.Constraint("Horizontal", 11, 2, 22, 2),
    Sketcher.Constraint("Vertical", 7, 2, 8, 2),
    Sketcher.Constraint("Vertical", 6, 2, 9, 2),
    Sketcher.Constraint("Vertical", 11, 2, 12, 2),
    Sketcher.Constraint("Vertical", 10, 2, 13, 2),
    Sketcher.Constraint("Vertical", 3, 2, 16, 2),
    Sketcher.Constraint("Vertical", 2, 2, 17, 2),
    Sketcher.Constraint("Vertical", 19, 2, 20, 2),
    Sketcher.Constraint("Vertical", 18, 2, 21, 2),
    Sketcher.Constraint("Equal", 3, 5),
    Sketcher.Constraint("Equal", 6, 12),
    Sketcher.Constraint("DistanceX", 1, 1, 1, 2, Q("0.21 in")),
    Sketcher.Constraint("DistanceY", 0, 2, 0, 1, Q("0.75 in")),
    Sketcher.Constraint("DistanceY", 7, 2, 12, 2, Q("2.83 in")),
    Sketcher.Constraint("DistanceY", 8, 2, 8, 1, Q("20.29584 mm")),
    Sketcher.Constraint("DistanceY", 7, 2, 8, 2, Q("21.487902 mm")),
    Sketcher.Constraint("DistanceX", 4, 2, 0, 2, Q("80.136149 mm")),
    Sketcher.Constraint("DistanceX", 0, 2, -1, 1, Q("30.513256 mm")),
    Sketcher.Constraint("DistanceY", -1, 1, 0, 2, Q("0.382195 mm")),
])
pocket14 = body.newObject("PartDesign::Pocket", "Pocket013")
pocket14.Profile = sketch17
pocket14.Type = "ThroughAll"

sketch18 = body.newObject("Sketcher::SketchObject", "Sketch017")
sketch18.AttachmentSupport = (doc.getObject("XY_Plane"), [""])
sketch18.MapMode = "FlatFace"
sketch18.addGeometry([
    Part.Circle(Vector(57.021452, 149.159143, 0), Vector(0, 0, 1), 5.113703),
    Part.Circle(Vector(57.021452, 166.299523, 0), Vector(0, 0, 1), 5.177908),
], False)
sketch18.addConstraint([
    Sketcher.Constraint("Vertical", 0, 3, 1, 3),
    Sketcher.Constraint("Diameter", 0, Q("10.227405 mm")),
    Sketcher.Constraint("Diameter", 1, Q("10.355816 mm")),
    Sketcher.Constraint("DistanceX", -1, 1, 0, 3, Q("57.021452 mm")),
    Sketcher.Constraint("DistanceY", 0, 3, 1, 3, Q("17.140379 mm")),
    Sketcher.Constraint("DistanceY", -1, 1, 0, 3, Q("149.159143 mm")),
])
pocket15 = body.newObject("PartDesign::Pocket", "Pocket014")
pocket15.Profile = sketch18
pocket15.Type = "ThroughAll"
pocket15.Reversed = True

doc.recompute()
